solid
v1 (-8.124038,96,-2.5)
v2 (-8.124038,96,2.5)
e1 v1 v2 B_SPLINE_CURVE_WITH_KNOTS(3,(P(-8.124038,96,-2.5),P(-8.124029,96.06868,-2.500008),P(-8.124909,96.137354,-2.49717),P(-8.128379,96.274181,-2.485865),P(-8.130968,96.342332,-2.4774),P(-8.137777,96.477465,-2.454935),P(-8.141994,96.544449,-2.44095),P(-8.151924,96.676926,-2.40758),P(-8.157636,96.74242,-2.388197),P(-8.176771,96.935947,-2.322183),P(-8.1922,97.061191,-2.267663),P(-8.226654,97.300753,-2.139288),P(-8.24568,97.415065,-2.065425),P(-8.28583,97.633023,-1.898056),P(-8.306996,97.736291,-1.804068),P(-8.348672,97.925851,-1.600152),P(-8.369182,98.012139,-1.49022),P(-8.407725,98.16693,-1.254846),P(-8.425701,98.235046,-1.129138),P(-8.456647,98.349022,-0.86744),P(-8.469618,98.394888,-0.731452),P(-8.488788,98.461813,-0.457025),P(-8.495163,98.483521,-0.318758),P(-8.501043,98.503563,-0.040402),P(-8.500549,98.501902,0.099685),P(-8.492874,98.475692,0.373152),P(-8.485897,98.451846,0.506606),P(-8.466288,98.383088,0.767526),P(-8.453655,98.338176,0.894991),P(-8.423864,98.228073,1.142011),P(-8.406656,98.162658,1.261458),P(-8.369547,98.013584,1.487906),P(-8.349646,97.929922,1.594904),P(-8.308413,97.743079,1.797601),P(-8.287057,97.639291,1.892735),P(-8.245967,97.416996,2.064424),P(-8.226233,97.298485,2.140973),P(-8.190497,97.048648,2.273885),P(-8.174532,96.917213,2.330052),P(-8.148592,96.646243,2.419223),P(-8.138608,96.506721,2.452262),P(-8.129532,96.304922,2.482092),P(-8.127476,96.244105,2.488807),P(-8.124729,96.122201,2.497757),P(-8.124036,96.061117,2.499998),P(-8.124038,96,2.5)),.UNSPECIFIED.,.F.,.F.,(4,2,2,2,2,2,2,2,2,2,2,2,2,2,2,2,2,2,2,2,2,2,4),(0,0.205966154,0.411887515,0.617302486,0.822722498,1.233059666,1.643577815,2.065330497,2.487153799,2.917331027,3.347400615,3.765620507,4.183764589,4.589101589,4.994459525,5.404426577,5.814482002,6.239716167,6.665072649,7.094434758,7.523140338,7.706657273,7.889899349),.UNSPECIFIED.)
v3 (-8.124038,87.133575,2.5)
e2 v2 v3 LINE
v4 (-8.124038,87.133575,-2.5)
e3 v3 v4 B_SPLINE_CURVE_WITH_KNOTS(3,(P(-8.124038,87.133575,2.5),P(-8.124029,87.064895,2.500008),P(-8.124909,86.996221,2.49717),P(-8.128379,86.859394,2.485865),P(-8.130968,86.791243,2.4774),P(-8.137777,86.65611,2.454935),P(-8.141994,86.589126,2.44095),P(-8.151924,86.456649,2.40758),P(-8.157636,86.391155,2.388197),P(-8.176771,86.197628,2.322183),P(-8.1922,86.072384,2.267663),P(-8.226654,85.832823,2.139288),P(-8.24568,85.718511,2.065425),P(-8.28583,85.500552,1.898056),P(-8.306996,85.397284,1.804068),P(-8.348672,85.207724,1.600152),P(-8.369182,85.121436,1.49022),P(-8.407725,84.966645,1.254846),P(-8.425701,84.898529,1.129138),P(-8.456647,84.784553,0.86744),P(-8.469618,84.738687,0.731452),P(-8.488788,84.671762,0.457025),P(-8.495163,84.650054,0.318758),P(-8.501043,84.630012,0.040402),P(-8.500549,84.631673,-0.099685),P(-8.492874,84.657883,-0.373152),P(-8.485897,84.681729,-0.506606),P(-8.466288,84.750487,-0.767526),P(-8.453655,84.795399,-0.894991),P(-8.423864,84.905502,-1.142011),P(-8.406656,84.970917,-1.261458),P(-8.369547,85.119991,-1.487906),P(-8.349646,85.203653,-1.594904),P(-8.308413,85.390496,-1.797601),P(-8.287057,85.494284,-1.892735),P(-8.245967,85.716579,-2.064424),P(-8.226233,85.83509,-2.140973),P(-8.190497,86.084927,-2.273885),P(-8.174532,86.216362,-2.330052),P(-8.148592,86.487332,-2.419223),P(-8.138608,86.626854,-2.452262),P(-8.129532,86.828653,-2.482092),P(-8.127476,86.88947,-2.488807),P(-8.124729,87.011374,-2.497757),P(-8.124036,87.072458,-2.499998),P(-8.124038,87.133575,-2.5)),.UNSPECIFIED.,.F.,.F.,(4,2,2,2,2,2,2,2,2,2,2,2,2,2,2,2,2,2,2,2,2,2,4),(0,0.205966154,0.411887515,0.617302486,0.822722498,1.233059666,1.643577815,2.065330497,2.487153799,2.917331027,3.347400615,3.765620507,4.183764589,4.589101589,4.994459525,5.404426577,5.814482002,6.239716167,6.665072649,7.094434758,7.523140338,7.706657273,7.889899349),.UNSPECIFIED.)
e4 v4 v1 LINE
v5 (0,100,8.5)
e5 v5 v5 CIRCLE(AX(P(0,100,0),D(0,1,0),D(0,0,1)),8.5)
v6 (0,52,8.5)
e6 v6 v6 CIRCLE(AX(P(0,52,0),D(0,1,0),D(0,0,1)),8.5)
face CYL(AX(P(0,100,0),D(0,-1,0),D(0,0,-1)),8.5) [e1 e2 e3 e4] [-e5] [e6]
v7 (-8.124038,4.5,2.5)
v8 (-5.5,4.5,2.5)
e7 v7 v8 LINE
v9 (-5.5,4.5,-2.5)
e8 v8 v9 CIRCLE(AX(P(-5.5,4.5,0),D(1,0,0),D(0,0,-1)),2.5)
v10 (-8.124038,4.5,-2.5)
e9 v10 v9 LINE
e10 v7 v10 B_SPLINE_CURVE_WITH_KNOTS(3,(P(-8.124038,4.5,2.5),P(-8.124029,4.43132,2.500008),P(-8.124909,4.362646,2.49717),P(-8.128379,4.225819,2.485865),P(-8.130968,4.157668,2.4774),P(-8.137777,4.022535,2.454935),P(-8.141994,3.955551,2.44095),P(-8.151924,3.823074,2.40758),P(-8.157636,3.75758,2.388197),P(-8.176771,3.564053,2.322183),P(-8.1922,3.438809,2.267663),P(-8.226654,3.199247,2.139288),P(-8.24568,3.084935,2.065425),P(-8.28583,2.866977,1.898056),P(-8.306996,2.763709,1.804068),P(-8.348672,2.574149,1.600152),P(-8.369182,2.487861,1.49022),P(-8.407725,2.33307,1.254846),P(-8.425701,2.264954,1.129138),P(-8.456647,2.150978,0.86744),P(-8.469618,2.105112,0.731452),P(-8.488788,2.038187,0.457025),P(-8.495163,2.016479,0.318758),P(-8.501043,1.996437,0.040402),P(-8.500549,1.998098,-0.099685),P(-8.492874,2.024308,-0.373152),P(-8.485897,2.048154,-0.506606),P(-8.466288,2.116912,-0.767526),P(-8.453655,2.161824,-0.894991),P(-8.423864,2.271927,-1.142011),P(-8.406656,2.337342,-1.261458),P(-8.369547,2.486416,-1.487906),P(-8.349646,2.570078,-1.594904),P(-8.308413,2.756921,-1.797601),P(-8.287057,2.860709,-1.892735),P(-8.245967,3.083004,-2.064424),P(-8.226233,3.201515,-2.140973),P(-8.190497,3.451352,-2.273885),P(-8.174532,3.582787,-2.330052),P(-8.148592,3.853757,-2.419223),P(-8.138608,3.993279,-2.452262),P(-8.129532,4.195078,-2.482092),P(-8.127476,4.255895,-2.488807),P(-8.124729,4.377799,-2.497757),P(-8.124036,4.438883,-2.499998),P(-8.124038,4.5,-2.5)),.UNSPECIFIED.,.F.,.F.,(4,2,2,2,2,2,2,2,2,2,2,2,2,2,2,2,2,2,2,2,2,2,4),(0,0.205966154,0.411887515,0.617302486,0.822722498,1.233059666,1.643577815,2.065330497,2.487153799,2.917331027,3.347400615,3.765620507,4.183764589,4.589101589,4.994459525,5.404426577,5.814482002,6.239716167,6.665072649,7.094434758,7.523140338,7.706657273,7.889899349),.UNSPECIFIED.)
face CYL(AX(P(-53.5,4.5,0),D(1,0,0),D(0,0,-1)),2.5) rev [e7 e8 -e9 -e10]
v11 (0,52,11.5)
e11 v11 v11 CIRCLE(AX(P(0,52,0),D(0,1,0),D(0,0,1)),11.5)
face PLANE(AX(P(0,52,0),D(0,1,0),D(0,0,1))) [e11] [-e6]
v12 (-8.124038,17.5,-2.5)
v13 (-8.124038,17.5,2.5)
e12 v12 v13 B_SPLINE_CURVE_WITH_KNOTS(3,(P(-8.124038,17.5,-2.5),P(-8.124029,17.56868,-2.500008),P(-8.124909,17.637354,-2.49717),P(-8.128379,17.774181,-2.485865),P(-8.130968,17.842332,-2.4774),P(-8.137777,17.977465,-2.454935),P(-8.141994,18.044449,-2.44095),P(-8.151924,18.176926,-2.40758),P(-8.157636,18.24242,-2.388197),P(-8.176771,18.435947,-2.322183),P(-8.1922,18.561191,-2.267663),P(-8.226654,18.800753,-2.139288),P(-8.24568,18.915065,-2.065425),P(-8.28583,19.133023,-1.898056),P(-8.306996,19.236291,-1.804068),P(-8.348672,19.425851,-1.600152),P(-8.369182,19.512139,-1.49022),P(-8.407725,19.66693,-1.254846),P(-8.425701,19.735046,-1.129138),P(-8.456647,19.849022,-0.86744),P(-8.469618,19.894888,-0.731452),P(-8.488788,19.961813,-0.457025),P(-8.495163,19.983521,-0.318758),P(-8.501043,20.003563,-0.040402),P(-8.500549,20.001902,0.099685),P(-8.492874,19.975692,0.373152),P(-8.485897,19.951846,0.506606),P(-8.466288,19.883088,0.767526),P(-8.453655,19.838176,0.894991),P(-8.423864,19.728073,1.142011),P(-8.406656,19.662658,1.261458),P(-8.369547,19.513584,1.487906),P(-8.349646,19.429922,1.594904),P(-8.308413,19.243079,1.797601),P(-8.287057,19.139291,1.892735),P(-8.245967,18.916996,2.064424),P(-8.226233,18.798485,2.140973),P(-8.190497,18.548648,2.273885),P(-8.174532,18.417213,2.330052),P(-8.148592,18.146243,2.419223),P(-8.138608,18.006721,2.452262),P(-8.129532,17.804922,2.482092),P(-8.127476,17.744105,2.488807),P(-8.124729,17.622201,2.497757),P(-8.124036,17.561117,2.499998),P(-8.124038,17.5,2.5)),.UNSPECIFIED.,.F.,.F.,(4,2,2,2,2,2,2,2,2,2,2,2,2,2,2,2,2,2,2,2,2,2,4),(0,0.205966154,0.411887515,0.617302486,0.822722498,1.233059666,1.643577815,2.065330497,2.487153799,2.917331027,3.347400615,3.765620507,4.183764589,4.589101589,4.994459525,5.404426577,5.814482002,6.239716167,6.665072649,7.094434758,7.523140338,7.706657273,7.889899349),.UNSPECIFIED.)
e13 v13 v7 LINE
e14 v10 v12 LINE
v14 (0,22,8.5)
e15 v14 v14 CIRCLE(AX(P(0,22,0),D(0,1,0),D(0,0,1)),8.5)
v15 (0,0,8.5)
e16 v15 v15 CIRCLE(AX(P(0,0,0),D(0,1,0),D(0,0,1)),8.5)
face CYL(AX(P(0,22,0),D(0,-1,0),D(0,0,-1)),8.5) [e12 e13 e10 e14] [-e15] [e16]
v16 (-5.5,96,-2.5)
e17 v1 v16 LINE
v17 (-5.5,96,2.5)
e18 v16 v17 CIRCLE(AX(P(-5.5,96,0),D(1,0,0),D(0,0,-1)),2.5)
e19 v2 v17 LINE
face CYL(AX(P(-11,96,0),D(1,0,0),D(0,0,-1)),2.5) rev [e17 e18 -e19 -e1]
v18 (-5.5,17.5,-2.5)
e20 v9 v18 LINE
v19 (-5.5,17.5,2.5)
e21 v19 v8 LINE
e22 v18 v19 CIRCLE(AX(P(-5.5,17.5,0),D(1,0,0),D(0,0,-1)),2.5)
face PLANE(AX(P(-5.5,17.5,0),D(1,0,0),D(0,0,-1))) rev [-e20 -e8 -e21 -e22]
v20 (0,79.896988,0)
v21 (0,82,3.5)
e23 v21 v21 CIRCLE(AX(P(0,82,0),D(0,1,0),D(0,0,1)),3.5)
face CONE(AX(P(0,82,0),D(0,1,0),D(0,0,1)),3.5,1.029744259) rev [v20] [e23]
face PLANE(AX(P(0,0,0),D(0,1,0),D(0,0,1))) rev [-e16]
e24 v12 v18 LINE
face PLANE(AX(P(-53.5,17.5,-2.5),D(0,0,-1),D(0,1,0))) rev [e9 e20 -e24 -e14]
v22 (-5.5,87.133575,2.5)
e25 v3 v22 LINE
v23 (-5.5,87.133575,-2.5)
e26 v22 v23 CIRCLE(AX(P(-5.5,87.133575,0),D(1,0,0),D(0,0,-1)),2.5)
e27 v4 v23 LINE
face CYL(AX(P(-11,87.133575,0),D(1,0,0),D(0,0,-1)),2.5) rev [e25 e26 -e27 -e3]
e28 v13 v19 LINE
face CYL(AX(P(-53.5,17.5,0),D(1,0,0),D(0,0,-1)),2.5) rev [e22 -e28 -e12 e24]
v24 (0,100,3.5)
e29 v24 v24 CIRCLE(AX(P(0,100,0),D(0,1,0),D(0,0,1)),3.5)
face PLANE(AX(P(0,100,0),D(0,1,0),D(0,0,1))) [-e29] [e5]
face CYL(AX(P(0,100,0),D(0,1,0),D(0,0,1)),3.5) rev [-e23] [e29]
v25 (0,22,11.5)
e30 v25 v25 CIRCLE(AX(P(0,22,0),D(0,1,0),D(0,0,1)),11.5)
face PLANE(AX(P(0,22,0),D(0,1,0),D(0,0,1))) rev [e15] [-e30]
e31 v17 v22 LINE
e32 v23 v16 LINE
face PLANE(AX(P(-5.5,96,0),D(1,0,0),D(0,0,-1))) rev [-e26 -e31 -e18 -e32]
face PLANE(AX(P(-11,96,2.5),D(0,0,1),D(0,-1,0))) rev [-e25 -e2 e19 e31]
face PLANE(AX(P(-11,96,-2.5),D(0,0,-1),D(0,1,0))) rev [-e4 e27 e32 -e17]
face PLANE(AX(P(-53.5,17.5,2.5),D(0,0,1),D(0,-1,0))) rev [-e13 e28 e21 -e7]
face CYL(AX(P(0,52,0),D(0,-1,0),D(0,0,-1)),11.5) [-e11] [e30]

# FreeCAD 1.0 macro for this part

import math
import FreeCAD as App
import Part
import Sketcher

V = App.Vector

doc = App.newDocument("Part")
params = doc.addObject("Spreadsheet::Sheet", "Params")
for row, (alias, value) in enumerate([
    ("sketch1_diameter", "17 mm"),
    ("pad1_length", "22 mm"),
    ("sketch2_diameter", "23 mm"),
    ("pad2_length", "30 mm"),
    ("sketch3_diameter", "17 mm"),
    ("pad3_length", "48 mm"),
    ("sketch4_radius", "2.5 mm"),
    ("sketch4_width", "13 mm"),
    ("pocket1_length", "48 mm"),
    ("sketch5_radius", "2.5 mm"),
    ("pocket2_length", "5.5 mm"),
    ("sketch6_diameter", "7 mm"),
    ("hole_diameter", "7 mm"),
    ("hole_depth", "18 mm"),
], start=1):
    params.set(f"A{row}", alias)
    params.set(f"B{row}", "=" + value)
    params.setAlias(f"B{row}", alias)

body = doc.addObject("PartDesign::Body", "Body")

# Sketch on XZ plane
sketch1 = body.newObject("Sketcher::SketchObject", "Sketch")
sketch1.AttachmentSupport = (doc.getObject("XZ_Plane"), [""])
sketch1.MapMode = "FlatFace"
sketch1.addGeometry(Part.Circle(V(0, 0, 0), V(0, 0, 1), 8), False)
sketch1.addConstraint(Sketcher.Constraint("Coincident", 0, 3, -1, 1))
sketch1.addConstraint(Sketcher.Constraint("Diameter", 0, 17.0))
sketch1.setExpression("Constraints[1]", "Params.sketch1_diameter")
pad1 = body.newObject("PartDesign::Pad", "Pad")
pad1.Profile = sketch1
pad1.setExpression("Length", "Params.pad1_length")
pad1.Reversed = True

# Sketch on XZ plane
sketch2 = body.newObject("Sketcher::SketchObject", "Sketch001")
sketch2.AttachmentSupport = (doc.getObject("XZ_Plane"), [""])
sketch2.MapMode = "FlatFace"
sketch2.AttachmentOffset = App.Placement(V(0, 0, -22), App.Rotation())
sketch2.addGeometry(Part.Circle(V(0, 0, 0), V(0, 0, 1), 12), False)
sketch2.addConstraint(Sketcher.Constraint("Coincident", 0, 3, -1, 1))
sketch2.addConstraint(Sketcher.Constraint("Diameter", 0, 23.0))
sketch2.setExpression("Constraints[1]", "Params.sketch2_diameter")
pad2 = body.newObject("PartDesign::Pad", "Pad001")
pad2.Profile = sketch2
pad2.setExpression("Length", "Params.pad2_length")
pad2.Reversed = True

# Sketch on XZ plane
sketch3 = body.newObject("Sketcher::SketchObject", "Sketch002")
sketch3.AttachmentSupport = (doc.getObject("XZ_Plane"), [""])
sketch3.MapMode = "FlatFace"
sketch3.AttachmentOffset = App.Placement(V(0, 0, -52), App.Rotation())
sketch3.addGeometry(Part.Circle(V(0, 0, 0), V(0, 0, 1), 8), False)
sketch3.addConstraint(Sketcher.Constraint("Coincident", 0, 3, -1, 1))
sketch3.addConstraint(Sketcher.Constraint("Diameter", 0, 17.0))
sketch3.setExpression("Constraints[1]", "Params.sketch3_diameter")
pad3 = body.newObject("PartDesign::Pad", "Pad002")
pad3.Profile = sketch3
pad3.setExpression("Length", "Params.pad3_length")
pad3.Reversed = True

# Sketch on YZ plane
sketch4 = body.newObject("Sketcher::SketchObject", "Sketch003")
sketch4.AttachmentSupport = (doc.getObject("YZ_Plane"), [""])
sketch4.MapMode = "FlatFace"
sketch4.AttachmentOffset = App.Placement(V(0, 0, -5.5), App.Rotation())
sketch4.addGeometry(Part.LineSegment(V(4.5, -2.5, 0), V(17.5, -2.5, 0)), False)
sketch4.addGeometry(Part.ArcOfCircle(Part.Circle(V(17.5, 0, 0), V(0, 0, 1), 2.5), math.radians(-90), math.radians(90)), False)
sketch4.addGeometry(Part.LineSegment(V(17.5, 2.5, 0), V(4.5, 2.5, 0)), False)
sketch4.addGeometry(Part.ArcOfCircle(Part.Circle(V(4.5, 0, 0), V(0, 0, 1), 2.5), math.radians(90), math.radians(270)), False)
sketch4.addConstraint(Sketcher.Constraint("Tangent", 0, 2, 1, 1))
sketch4.addConstraint(Sketcher.Constraint("Tangent", 1, 2, 2, 1))
sketch4.addConstraint(Sketcher.Constraint("Tangent", 2, 2, 3, 1))
sketch4.addConstraint(Sketcher.Constraint("Tangent", 3, 2, 0, 1))
sketch4.addConstraint(Sketcher.Constraint("Horizontal", 0))
sketch4.addConstraint(Sketcher.Constraint("Horizontal", 2))
sketch4.addConstraint(Sketcher.Constraint("PointOnObject", 1, 3, -1))
sketch4.addConstraint(Sketcher.Constraint("Radius", 1, 2.5))
sketch4.addConstraint(Sketcher.Constraint("DistanceX", 0, 1, 0, 2, 13.0))
sketch4.addConstraint(Sketcher.Constraint("DistanceX", -1, 1, 1, 3, 17.5))
sketch4.setExpression("Constraints[7]", "Params.sketch4_radius")
sketch4.setExpression("Constraints[8]", "Params.sketch4_width")
pocket1 = body.newObject("PartDesign::Pocket", "Pocket")
pocket1.Profile = sketch4
pocket1.setExpression("Length", "Params.pocket1_length")

# Sketch on YZ plane
sketch5 = body.newObject("Sketcher::SketchObject", "Sketch004")
sketch5.AttachmentSupport = (doc.getObject("YZ_Plane"), [""])
sketch5.MapMode = "FlatFace"
sketch5.AttachmentOffset = App.Placement(V(0, 0, -5.5), App.Rotation())
sketch5.addGeometry(Part.LineSegment(V(87.1, -2.5, 0), V(96, -2.5, 0)), False)
sketch5.addGeometry(Part.ArcOfCircle(Part.Circle(V(96, 0, 0), V(0, 0, 1), 2.5), math.radians(-90), math.radians(90)), False)
sketch5.addGeometry(Part.LineSegment(V(96, 2.5, 0), V(87.1, 2.5, 0)), False)
sketch5.addGeometry(Part.ArcOfCircle(Part.Circle(V(87.1, 0, 0), V(0, 0, 1), 2.5), math.radians(90), math.radians(270)), False)
sketch5.addConstraint(Sketcher.Constraint("Tangent", 0, 2, 1, 1))
sketch5.addConstraint(Sketcher.Constraint("Tangent", 1, 2, 2, 1))
sketch5.addConstraint(Sketcher.Constraint("Tangent", 2, 2, 3, 1))
sketch5.addConstraint(Sketcher.Constraint("Tangent", 3, 2, 0, 1))
sketch5.addConstraint(Sketcher.Constraint("Horizontal", 0))
sketch5.addConstraint(Sketcher.Constraint("Horizontal", 2))
sketch5.addConstraint(Sketcher.Constraint("PointOnObject", 1, 3, -1))
sketch5.addConstraint(Sketcher.Constraint("Radius", 1, 2.5))
sketch5.addConstraint(Sketcher.Constraint("DistanceX", -1, 1, 1, 3, 96.0))
sketch5.addConstraint(Sketcher.Constraint("DistanceX", 0, 1, 0, 2, 8.866425))
sketch5.setExpression("Constraints[7]", "Params.sketch5_radius")
pocket2 = body.newObject("PartDesign::Pocket", "Pocket001")
pocket2.Profile = sketch5
pocket2.setExpression("Length", "Params.pocket2_length")

# Sketch on XZ plane
sketch6 = body.newObject("Sketcher::SketchObject", "Sketch005")
sketch6.AttachmentSupport = (doc.getObject("XZ_Plane"), [""])
sketch6.MapMode = "FlatFace"
sketch6.AttachmentOffset = App.Placement(V(0, 0, -100), App.Rotation())
sketch6.addGeometry(Part.Circle(V(0, 0, 0), V(0, 0, 1), 3.5), False)
sketch6.addConstraint(Sketcher.Constraint("Coincident", 0, 3, -1, 1))
sketch6.addConstraint(Sketcher.Constraint("Diameter", 0, 7.0))
sketch6.setExpression("Constraints[1]", "Params.sketch6_diameter")
doc.recompute()
hole = body.newObject("PartDesign::Hole", "Hole")
hole.Profile = sketch6
hole.ThreadType = "None"
hole.setExpression("Diameter", "Params.hole_diameter")
hole.DepthType = "Dimension"
hole.setExpression("Depth", "Params.hole_depth")
hole.DrillPoint = "Angled"
hole.DrillPointAngle = 118
hole.Reversed = True

doc.recompute()
